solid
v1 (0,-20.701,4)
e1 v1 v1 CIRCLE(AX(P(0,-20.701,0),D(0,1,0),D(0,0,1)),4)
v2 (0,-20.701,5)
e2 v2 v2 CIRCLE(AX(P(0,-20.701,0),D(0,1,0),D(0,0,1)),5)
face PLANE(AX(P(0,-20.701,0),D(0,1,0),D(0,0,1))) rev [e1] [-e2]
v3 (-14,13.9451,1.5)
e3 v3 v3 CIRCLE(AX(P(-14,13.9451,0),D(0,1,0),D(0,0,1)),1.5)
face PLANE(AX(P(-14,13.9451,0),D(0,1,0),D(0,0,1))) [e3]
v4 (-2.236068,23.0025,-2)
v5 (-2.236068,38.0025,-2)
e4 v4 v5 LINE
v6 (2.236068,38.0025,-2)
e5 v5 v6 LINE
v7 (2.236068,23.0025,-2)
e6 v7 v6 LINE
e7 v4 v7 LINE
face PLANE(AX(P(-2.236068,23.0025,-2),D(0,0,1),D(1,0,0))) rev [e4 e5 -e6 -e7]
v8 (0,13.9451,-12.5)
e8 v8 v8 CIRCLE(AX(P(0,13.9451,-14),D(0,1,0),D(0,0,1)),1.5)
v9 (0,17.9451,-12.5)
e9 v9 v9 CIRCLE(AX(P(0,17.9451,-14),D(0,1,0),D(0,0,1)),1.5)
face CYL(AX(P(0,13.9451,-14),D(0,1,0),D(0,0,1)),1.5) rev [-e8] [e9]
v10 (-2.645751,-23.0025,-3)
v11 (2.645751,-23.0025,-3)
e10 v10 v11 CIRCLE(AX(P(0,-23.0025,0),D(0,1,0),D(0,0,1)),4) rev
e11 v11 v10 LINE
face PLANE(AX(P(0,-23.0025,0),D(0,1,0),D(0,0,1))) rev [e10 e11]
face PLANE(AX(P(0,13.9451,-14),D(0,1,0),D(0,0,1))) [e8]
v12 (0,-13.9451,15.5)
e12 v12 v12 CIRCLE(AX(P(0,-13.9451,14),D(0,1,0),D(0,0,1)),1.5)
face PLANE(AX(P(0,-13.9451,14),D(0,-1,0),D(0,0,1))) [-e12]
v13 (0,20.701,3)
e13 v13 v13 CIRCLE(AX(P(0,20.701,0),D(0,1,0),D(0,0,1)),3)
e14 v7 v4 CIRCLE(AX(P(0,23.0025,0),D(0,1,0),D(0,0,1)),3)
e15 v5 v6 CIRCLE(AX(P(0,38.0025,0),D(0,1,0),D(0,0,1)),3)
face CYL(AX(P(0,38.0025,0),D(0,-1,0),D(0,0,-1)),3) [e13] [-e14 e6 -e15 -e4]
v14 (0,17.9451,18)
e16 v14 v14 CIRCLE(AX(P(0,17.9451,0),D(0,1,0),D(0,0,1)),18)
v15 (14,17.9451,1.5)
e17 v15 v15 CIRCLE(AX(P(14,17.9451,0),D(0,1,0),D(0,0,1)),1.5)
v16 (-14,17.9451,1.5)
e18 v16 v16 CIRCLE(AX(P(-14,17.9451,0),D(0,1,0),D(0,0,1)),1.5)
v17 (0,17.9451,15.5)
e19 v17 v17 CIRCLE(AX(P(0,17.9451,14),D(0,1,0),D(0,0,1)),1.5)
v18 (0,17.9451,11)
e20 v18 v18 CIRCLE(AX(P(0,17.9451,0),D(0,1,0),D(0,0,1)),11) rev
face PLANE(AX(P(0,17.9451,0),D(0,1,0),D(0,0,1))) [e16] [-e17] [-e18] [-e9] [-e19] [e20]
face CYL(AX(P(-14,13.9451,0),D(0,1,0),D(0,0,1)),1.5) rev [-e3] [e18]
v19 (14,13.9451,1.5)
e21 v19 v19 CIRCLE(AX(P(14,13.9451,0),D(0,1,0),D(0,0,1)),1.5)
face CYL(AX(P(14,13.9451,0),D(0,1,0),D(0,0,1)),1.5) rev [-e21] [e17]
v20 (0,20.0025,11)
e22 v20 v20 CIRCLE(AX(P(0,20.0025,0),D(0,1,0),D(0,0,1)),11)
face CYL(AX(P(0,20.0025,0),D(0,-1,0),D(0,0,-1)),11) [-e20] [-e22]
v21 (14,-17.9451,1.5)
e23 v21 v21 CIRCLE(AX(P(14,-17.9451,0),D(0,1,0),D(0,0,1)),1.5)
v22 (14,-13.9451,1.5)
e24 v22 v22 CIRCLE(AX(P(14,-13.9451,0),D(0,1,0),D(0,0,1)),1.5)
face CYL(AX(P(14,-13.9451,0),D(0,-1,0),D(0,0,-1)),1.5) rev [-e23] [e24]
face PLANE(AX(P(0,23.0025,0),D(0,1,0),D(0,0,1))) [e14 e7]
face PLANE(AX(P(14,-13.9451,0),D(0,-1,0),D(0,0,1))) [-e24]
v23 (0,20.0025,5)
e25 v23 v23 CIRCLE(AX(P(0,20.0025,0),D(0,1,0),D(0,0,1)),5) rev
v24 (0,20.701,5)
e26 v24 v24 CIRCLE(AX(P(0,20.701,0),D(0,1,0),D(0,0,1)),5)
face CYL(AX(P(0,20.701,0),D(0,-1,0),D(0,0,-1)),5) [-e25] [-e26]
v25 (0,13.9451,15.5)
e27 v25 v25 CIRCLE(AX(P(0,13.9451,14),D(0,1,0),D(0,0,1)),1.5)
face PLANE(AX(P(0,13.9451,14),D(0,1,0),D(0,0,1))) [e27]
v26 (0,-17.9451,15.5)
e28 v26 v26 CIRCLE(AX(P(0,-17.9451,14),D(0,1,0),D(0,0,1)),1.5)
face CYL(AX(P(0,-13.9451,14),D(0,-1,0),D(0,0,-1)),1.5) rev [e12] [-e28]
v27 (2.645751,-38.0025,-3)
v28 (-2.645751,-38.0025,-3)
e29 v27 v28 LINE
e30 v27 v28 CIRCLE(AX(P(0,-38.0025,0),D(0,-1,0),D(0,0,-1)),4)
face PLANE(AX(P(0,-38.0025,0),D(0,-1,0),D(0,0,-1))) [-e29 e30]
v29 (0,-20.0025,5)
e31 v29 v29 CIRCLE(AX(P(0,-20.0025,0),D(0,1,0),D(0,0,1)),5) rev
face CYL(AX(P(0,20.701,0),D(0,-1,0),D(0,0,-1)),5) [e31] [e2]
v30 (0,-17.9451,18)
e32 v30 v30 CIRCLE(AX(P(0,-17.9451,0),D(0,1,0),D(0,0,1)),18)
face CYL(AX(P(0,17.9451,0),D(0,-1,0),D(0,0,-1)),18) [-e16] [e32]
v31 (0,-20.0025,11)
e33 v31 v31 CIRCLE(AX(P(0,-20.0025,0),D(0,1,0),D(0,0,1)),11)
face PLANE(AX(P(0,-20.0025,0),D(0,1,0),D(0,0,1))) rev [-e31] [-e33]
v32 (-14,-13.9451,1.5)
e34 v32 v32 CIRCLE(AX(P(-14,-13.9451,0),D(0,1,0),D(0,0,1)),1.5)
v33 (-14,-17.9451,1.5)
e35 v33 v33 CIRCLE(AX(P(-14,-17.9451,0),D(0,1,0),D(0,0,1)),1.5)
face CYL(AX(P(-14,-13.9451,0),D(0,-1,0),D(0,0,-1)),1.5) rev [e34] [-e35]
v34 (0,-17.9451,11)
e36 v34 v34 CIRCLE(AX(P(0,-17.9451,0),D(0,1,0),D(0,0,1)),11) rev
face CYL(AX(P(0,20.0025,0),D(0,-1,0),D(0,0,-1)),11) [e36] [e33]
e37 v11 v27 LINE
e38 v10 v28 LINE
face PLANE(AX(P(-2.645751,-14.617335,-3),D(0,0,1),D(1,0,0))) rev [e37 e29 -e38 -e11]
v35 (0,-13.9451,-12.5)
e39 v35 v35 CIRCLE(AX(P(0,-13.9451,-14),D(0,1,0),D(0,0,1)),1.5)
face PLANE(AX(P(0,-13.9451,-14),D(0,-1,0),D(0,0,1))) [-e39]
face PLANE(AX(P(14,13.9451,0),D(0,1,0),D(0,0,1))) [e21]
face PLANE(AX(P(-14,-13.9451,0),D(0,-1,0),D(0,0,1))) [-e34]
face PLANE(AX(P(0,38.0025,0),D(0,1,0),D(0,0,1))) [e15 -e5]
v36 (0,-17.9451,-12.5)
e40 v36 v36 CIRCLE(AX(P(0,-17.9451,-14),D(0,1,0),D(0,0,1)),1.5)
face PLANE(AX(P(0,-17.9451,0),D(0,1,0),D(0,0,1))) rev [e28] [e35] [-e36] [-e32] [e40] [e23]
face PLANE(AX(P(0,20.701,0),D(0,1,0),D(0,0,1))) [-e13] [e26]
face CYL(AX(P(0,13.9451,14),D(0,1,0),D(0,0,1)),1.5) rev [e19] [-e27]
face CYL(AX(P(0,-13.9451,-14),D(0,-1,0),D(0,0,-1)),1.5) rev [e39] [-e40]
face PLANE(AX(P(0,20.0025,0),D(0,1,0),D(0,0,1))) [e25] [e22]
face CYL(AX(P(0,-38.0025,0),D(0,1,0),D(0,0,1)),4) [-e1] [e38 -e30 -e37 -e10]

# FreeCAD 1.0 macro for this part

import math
import FreeCAD as App
import Part
import Sketcher

doc = App.newDocument("Part")
body = doc.addObject("PartDesign::Body", "Body")

# Sketch on XZ plane
sketch1 = body.newObject("Sketcher::SketchObject", "Sketch")
sketch1.AttachmentSupport = (doc.getObject("XZ_Plane"), [""])
sketch1.MapMode = "FlatFace"
sketch1.addGeometry(Part.Circle(App.Vector(0, 0, 0), App.Vector(0, 0, 1), 18), False)
sketch1.addConstraint([
    Sketcher.Constraint("Coincident", 0, 3, -1, 1),
    Sketcher.Constraint("Diameter", 0, 36.0),
])
pad1 = body.newObject("PartDesign::Pad", "Pad")
pad1.Profile = sketch1
pad1.Length = 35.8902
pad1.Midplane = True

# Sketch on XZ plane
sketch2 = body.newObject("Sketcher::SketchObject", "Sketch001")
sketch2.AttachmentSupport = (doc.getObject("XZ_Plane"), [""])
sketch2.MapMode = "FlatFace"
sketch2.addGeometry(Part.Circle(App.Vector(0, 0, 0), App.Vector(0, 0, 1), 11), False)
sketch2.addConstraint([
    Sketcher.Constraint("Coincident", 0, 3, -1, 1),
    Sketcher.Constraint("Diameter", 0, 22.0),
])
pad2 = body.newObject("PartDesign::Pad", "Pad001")
pad2.Profile = sketch2
pad2.Length = 40.005
pad2.Midplane = True

# Sketch on XZ plane
sketch3 = body.newObject("Sketcher::SketchObject", "Sketch002")
sketch3.AttachmentSupport = (doc.getObject("XZ_Plane"), [""])
sketch3.MapMode = "FlatFace"
sketch3.AttachmentOffset = App.Placement(App.Vector(0, 0, -20.0025), App.Rotation())
sketch3.addGeometry(Part.Circle(App.Vector(0, 0, 0), App.Vector(0, 0, 1), 3), False)
sketch3.addConstraint([
    Sketcher.Constraint("Coincident", 0, 3, -1, 1),
    Sketcher.Constraint("Diameter", 0, 6.0),
])
pad3 = body.newObject("PartDesign::Pad", "Pad002")
pad3.Profile = sketch3
pad3.Length = 18
pad3.Reversed = True

# Sketch on XZ plane
sketch4 = body.newObject("Sketcher::SketchObject", "Sketch003")
sketch4.AttachmentSupport = (doc.getObject("XZ_Plane"), [""])
sketch4.MapMode = "FlatFace"
sketch4.AttachmentOffset = App.Placement(App.Vector(0, 0, -38.0025), App.Rotation())
sketch4.addGeometry([
    Part.LineSegment(App.Vector(-2.2, -2, 0), App.Vector(2.2, -2, 0)),
    Part.ArcOfCircle(Part.Circle(App.Vector(0, 0, 0), App.Vector(0, 0, 1), 3), math.radians(-138), math.radians(-42)),
], False)
sketch4.addConstraint([
    Sketcher.Constraint("Coincident", 0, 1, 1, 1),
    Sketcher.Constraint("Coincident", 1, 2, 0, 2),
    Sketcher.Constraint("Horizontal", 0),
    Sketcher.Constraint("Coincident", 1, 3, -1, 1),
    Sketcher.Constraint("Radius", 1, 3.0),
    Sketcher.Constraint("DistanceY", 0, 1, -1, 1, 2.0),
])
pocket1 = body.newObject("PartDesign::Pocket", "Pocket")
pocket1.Profile = sketch4
pocket1.Length = 15
pocket1.Reversed = True

# Sketch on XZ plane
sketch5 = body.newObject("Sketcher::SketchObject", "Sketch004")
sketch5.AttachmentSupport = (doc.getObject("XZ_Plane"), [""])
sketch5.MapMode = "FlatFace"
sketch5.AttachmentOffset = App.Placement(App.Vector(0, 0, -17.9451), App.Rotation())
sketch5.addGeometry([
    Part.Circle(App.Vector(0, -14, 0), App.Vector(0, 0, 1), 1.5),
    Part.Circle(App.Vector(-14, 0, 0), App.Vector(0, 0, 1), 1.5),
    Part.Circle(App.Vector(0, 14, 0), App.Vector(0, 0, 1), 1.5),
    Part.Circle(App.Vector(14, 0, 0), App.Vector(0, 0, 1), 1.5),
], False)
sketch5.addConstraint([
    Sketcher.Constraint("Equal", 0, 1),
    Sketcher.Constraint("Equal", 1, 2),
    Sketcher.Constraint("Equal", 2, 3),
    Sketcher.Constraint("Symmetric", 0, 3, 2, 3, -1, 1),
    Sketcher.Constraint("Symmetric", 1, 3, 3, 3, -1, 1),
    Sketcher.Constraint("PointOnObject", 0, 3, -2),
    Sketcher.Constraint("PointOnObject", 1, 3, -1),
    Sketcher.Constraint("Diameter", 0, 3.0),
    Sketcher.Constraint("DistanceY", 0, 3, -1, 1, 14.0),
    Sketcher.Constraint("DistanceX", 1, 3, -1, 1, 14.0),
])
pocket2 = body.newObject("PartDesign::Pocket", "Pocket001")
pocket2.Profile = sketch5
pocket2.Length = 4
pocket2.Reversed = True
doc.recompute()

mirrored = body.newObject("PartDesign::Mirrored", "Mirrored")
mirrored.Originals = [pocket1, pocket2]
mirrored.MirrorPlane = (doc.getObject("XZ_Plane"), [""])
body.Tip = mirrored

# Sketch on XZ plane
sketch6 = body.newObject("Sketcher::SketchObject", "Sketch005")
sketch6.AttachmentSupport = (doc.getObject("XZ_Plane"), [""])
sketch6.MapMode = "FlatFace"
sketch6.AttachmentOffset = App.Placement(App.Vector(0, 0, 20.0025), App.Rotation())
sketch6.addGeometry(Part.Circle(App.Vector(0, 0, 0), App.Vector(0, 0, 1), 4), False)
sketch6.addConstraint([
    Sketcher.Constraint("Coincident", 0, 3, -1, 1),
    Sketcher.Constraint("Diameter", 0, 8.0),
])
pad4 = body.newObject("PartDesign::Pad", "Pad003")
pad4.Profile = sketch6
pad4.Length = 18

# Sketch on XZ plane
sketch7 = body.newObject("Sketcher::SketchObject", "Sketch006")
sketch7.AttachmentSupport = (doc.getObject("XZ_Plane"), [""])
sketch7.MapMode = "FlatFace"
sketch7.AttachmentOffset = App.Placement(App.Vector(0, 0, 38.0025), App.Rotation())
sketch7.addGeometry([
    Part.LineSegment(App.Vector(2.6, -3, 0), App.Vector(-2.6, -3, 0)),
    Part.ArcOfCircle(Part.Circle(App.Vector(0, 0, 0), App.Vector(0, 0, 1), 4), math.radians(-131), math.radians(-49)),
], False)
sketch7.addConstraint([
    Sketcher.Constraint("Coincident", 0, 1, 1, 2),
    Sketcher.Constraint("Coincident", 1, 1, 0, 2),
    Sketcher.Constraint("Horizontal", 0),
    Sketcher.Constraint("Coincident", 1, 3, -1, 1),
    Sketcher.Constraint("Radius", 1, 4.0),
    Sketcher.Constraint("DistanceY", 0, 1, -1, 1, 3.0),
])
pocket3 = body.newObject("PartDesign::Pocket", "Pocket002")
pocket3.Profile = sketch7
pocket3.Length = 15

# Sketch on XZ plane
sketch8 = body.newObject("Sketcher::SketchObject", "Sketch007")
sketch8.AttachmentSupport = (doc.getObject("XZ_Plane"), [""])
sketch8.MapMode = "FlatFace"
sketch8.addGeometry(Part.Circle(App.Vector(0, 0, 0), App.Vector(0, 0, 1), 5), False)
sketch8.addConstraint([
    Sketcher.Constraint("Coincident", 0, 3, -1, 1),
    Sketcher.Constraint("Diameter", 0, 10.0),
])
pad5 = body.newObject("PartDesign::Pad", "Pad004")
pad5.Profile = sketch8
pad5.Length = 41.402
pad5.Midplane = True

doc.recompute()
